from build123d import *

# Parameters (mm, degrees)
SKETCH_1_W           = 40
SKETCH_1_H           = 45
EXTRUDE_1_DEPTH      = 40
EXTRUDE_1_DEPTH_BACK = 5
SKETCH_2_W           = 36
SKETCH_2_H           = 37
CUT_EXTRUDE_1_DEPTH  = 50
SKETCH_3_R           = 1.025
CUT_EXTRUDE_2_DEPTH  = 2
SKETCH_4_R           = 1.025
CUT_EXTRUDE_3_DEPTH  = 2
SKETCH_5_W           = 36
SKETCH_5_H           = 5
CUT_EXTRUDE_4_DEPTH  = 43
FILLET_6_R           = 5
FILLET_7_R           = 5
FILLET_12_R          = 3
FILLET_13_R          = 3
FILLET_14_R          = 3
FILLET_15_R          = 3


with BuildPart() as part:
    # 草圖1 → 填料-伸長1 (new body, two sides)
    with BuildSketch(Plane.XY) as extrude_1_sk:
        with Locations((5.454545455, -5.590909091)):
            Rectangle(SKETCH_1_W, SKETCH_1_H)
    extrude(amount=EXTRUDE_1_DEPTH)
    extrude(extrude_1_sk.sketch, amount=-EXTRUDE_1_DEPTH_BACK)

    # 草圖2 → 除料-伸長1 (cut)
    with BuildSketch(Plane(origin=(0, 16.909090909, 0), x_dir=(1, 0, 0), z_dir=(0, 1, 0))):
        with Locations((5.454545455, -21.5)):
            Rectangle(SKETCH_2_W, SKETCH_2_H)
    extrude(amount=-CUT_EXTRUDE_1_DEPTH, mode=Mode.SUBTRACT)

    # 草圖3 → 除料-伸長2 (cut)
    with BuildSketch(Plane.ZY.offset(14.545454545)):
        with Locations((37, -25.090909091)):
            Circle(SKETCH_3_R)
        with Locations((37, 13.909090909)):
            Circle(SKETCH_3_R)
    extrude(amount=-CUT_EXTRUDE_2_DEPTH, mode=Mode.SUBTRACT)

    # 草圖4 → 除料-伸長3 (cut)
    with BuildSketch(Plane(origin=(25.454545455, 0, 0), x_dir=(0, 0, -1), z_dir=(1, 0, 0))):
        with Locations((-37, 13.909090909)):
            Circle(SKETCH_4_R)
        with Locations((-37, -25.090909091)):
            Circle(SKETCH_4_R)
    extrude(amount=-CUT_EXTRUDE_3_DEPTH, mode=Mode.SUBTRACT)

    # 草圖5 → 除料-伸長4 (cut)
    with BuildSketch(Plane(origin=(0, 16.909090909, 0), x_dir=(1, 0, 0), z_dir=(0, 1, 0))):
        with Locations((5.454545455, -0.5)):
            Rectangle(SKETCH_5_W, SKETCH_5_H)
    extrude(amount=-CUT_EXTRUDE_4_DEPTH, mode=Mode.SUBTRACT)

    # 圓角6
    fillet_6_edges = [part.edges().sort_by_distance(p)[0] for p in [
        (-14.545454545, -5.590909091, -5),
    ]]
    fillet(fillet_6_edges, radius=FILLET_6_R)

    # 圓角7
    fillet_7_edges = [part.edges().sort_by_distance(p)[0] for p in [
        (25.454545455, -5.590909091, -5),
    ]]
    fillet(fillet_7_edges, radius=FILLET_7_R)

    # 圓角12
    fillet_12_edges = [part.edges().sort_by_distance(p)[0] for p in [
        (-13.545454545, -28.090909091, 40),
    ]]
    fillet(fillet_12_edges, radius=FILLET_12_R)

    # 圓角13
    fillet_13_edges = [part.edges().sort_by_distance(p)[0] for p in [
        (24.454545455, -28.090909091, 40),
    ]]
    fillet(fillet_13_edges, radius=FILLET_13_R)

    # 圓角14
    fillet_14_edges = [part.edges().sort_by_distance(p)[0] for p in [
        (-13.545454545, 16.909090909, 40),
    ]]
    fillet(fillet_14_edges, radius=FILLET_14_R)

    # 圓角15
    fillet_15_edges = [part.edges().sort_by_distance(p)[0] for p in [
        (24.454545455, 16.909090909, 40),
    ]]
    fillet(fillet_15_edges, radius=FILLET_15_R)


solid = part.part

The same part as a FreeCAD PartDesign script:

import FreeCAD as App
import Part
import Sketcher


def edges_at(feature, points):
    """Names of the edges that pass closest to the given points."""
    edges = feature.Shape.Edges
    near = lambda p: min(range(len(edges)), key=lambda i: edges[i].distToShape(Part.Vertex(*p))[0])
    return sorted({f"Edge{near(p) + 1}" for p in points})

doc = App.newDocument("Part")
body = doc.addObject("PartDesign::Body", "Body")

# Sketch on XY plane
sketch1 = body.newObject("Sketcher::SketchObject", "Sketch")
sketch1.AttachmentSupport = (doc.getObject("XY_Plane"), [""])
sketch1.MapMode = "FlatFace"
sketch1.addGeometry([
    Part.LineSegment(App.Vector(-15, 17, 0), App.Vector(-15, -28, 0)),
    Part.LineSegment(App.Vector(-15, -28, 0), App.Vector(25, -28, 0)),
    Part.LineSegment(App.Vector(25, -28, 0), App.Vector(25, 17, 0)),
    Part.LineSegment(App.Vector(25, 17, 0), App.Vector(-15, 17, 0)),
], False)
sketch1.addConstraint([
    Sketcher.Constraint("Coincident", 0, 2, 1, 1),
    Sketcher.Constraint("Coincident", 1, 2, 2, 1),
    Sketcher.Constraint("Coincident", 2, 2, 3, 1),
    Sketcher.Constraint("Coincident", 3, 2, 0, 1),
    Sketcher.Constraint("Vertical", 0),
    Sketcher.Constraint("Horizontal", 1),
    Sketcher.Constraint("Vertical", 2),
    Sketcher.Constraint("Horizontal", 3),
    Sketcher.Constraint("DistanceX", 1, 1, 1, 2, 40.0),
    Sketcher.Constraint("DistanceY", 0, 2, 0, 1, 45.0),
    Sketcher.Constraint("DistanceY", 0, 2, -1, 1, 28.090909),
    Sketcher.Constraint("DistanceX", 0, 2, -1, 1, 14.545455),
])
pad1 = body.newObject("PartDesign::Pad", "Pad")
pad1.Profile = sketch1
pad1.Type = "TwoLengths"
pad1.Length = 40
pad1.Length2 = 5

# Sketch on XZ plane
sketch2 = body.newObject("Sketcher::SketchObject", "Sketch001")
sketch2.AttachmentSupport = (doc.getObject("XZ_Plane"), [""])
sketch2.MapMode = "FlatFace"
sketch2.AttachmentOffset = App.Placement(App.Vector(0, 0, -16.909091), App.Rotation())
sketch2.addGeometry([
    Part.LineSegment(App.Vector(-13, 3, 0), App.Vector(-13, 40, 0)),
    Part.LineSegment(App.Vector(-13, 40, 0), App.Vector(23, 40, 0)),
    Part.LineSegment(App.Vector(23, 40, 0), App.Vector(23, 3, 0)),
    Part.LineSegment(App.Vector(23, 3, 0), App.Vector(-13, 3, 0)),
], False)
sketch2.addConstraint([
    Sketcher.Constraint("Coincident", 0, 2, 1, 1),
    Sketcher.Constraint("Coincident", 1, 2, 2, 1),
    Sketcher.Constraint("Coincident", 2, 2, 3, 1),
    Sketcher.Constraint("Coincident", 3, 2, 0, 1),
    Sketcher.Constraint("Vertical", 0),
    Sketcher.Constraint("Horizontal", 1),
    Sketcher.Constraint("Vertical", 2),
    Sketcher.Constraint("Horizontal", 3),
    Sketcher.Constraint("DistanceX", 1, 1, 1, 2, 36.0),
    Sketcher.Constraint("DistanceY", 0, 1, 0, 2, 37.0),
    Sketcher.Constraint("DistanceY", -1, 1, 0, 2, 40.0),
    Sketcher.Constraint("DistanceX", 0, 2, -1, 1, 12.545455),
])
pocket1 = body.newObject("PartDesign::Pocket", "Pocket")
pocket1.Profile = sketch2
pocket1.Length = 50
pocket1.Reversed = True

# Sketch on YZ plane
sketch3 = body.newObject("Sketcher::SketchObject", "Sketch002")
sketch3.AttachmentSupport = (doc.getObject("YZ_Plane"), [""])
sketch3.MapMode = "FlatFace"
sketch3.AttachmentOffset = App.Placement(App.Vector(0, 0, -14.545455), App.Rotation())
sketch3.addGeometry([
    Part.Circle(App.Vector(-25.1, 37, 0), App.Vector(0, 0, 1), 1),
    Part.Circle(App.Vector(13.9, 37, 0), App.Vector(0, 0, 1), 1),
], False)
sketch3.addConstraint([
    Sketcher.Constraint("Equal", 0, 1),
    Sketcher.Constraint("Horizontal", 0, 3, 1, 3),
    Sketcher.Constraint("Diameter", 0, 2.05),
    Sketcher.Constraint("DistanceY", -1, 1, 0, 3, 37.0),
    Sketcher.Constraint("DistanceX", 0, 3, 1, 3, 39.0),
    Sketcher.Constraint("DistanceX", 0, 3, -1, 1, 25.090909),
])
pocket2 = body.newObject("PartDesign::Pocket", "Pocket001")
pocket2.Profile = sketch3
pocket2.Length = 2
pocket2.Reversed = True

# Sketch on YZ plane
sketch4 = body.newObject("Sketcher::SketchObject", "Sketch003")
sketch4.AttachmentSupport = (doc.getObject("YZ_Plane"), [""])
sketch4.MapMode = "FlatFace"
sketch4.AttachmentOffset = App.Placement(App.Vector(0, 0, 25.454545), App.Rotation())
sketch4.addGeometry([
    Part.Circle(App.Vector(13.9, 37, 0), App.Vector(0, 0, 1), 1),
    Part.Circle(App.Vector(-25.1, 37, 0), App.Vector(0, 0, 1), 1),
], False)
sketch4.addConstraint([
    Sketcher.Constraint("Equal", 0, 1),
    Sketcher.Constraint("Horizontal", 0, 3, 1, 3),
    Sketcher.Constraint("Diameter", 0, 2.05),
    Sketcher.Constraint("DistanceY", -1, 1, 0, 3, 37.0),
    Sketcher.Constraint("DistanceX", 1, 3, 0, 3, 39.0),
    Sketcher.Constraint("DistanceX", -1, 1, 0, 3, 13.909091),
])
pocket3 = body.newObject("PartDesign::Pocket", "Pocket002")
pocket3.Profile = sketch4
pocket3.Length = 2

# Sketch on XZ plane
sketch5 = body.newObject("Sketcher::SketchObject", "Sketch004")
sketch5.AttachmentSupport = (doc.getObject("XZ_Plane"), [""])
sketch5.MapMode = "FlatFace"
sketch5.AttachmentOffset = App.Placement(App.Vector(0, 0, -16.909091), App.Rotation())
sketch5.addGeometry([
    Part.LineSegment(App.Vector(-13, -2, 0), App.Vector(-13, 3, 0)),
    Part.LineSegment(App.Vector(-13, 3, 0), App.Vector(23, 3, 0)),
    Part.LineSegment(App.Vector(23, 3, 0), App.Vector(23, -2, 0)),
    Part.LineSegment(App.Vector(23, -2, 0), App.Vector(-13, -2, 0)),
], False)
sketch5.addConstraint([
    Sketcher.Constraint("Coincident", 0, 2, 1, 1),
    Sketcher.Constraint("Coincident", 1, 2, 2, 1),
    Sketcher.Constraint("Coincident", 2, 2, 3, 1),
    Sketcher.Constraint("Coincident", 3, 2, 0, 1),
    Sketcher.Constraint("Vertical", 0),
    Sketcher.Constraint("Horizontal", 1),
    Sketcher.Constraint("Vertical", 2),
    Sketcher.Constraint("Horizontal", 3),
    Sketcher.Constraint("DistanceX", 1, 1, 1, 2, 36.0),
    Sketcher.Constraint("DistanceY", 0, 1, 0, 2, 5.0),
    Sketcher.Constraint("DistanceY", -1, 1, 0, 2, 3.0),
    Sketcher.Constraint("DistanceX", 0, 2, -1, 1, 12.545455),
])
pocket4 = body.newObject("PartDesign::Pocket", "Pocket003")
pocket4.Profile = sketch5
pocket4.Length = 43
pocket4.Reversed = True
doc.recompute()

fillet = body.newObject("PartDesign::Fillet", "Fillet")
fillet.Base = (pocket4, edges_at(pocket4, [(-14.545, -5.591, -5)]))
fillet.Radius = 5
doc.recompute()

fillet2 = body.newObject("PartDesign::Fillet", "Fillet001")
fillet2.Base = (fillet, edges_at(fillet, [(25.455, -5.591, -5)]))
fillet2.Radius = 5
doc.recompute()

fillet3 = body.newObject("PartDesign::Fillet", "Fillet002")
fillet3.Base = (fillet2, edges_at(fillet2, [(-13.545, -28.091, 40)]))
fillet3.Radius = 3
doc.recompute()

fillet4 = body.newObject("PartDesign::Fillet", "Fillet003")
fillet4.Base = (fillet3, edges_at(fillet3, [(24.455, -28.091, 40)]))
fillet4.Radius = 3
doc.recompute()

fillet5 = body.newObject("PartDesign::Fillet", "Fillet004")
fillet5.Base = (fillet4, edges_at(fillet4, [(-13.545, 16.909, 40)]))
fillet5.Radius = 3
doc.recompute()

fillet6 = body.newObject("PartDesign::Fillet", "Fillet005")
fillet6.Base = (fillet5, edges_at(fillet5, [(24.455, 16.909, 40)]))
fillet6.Radius = 3

doc.recompute()
